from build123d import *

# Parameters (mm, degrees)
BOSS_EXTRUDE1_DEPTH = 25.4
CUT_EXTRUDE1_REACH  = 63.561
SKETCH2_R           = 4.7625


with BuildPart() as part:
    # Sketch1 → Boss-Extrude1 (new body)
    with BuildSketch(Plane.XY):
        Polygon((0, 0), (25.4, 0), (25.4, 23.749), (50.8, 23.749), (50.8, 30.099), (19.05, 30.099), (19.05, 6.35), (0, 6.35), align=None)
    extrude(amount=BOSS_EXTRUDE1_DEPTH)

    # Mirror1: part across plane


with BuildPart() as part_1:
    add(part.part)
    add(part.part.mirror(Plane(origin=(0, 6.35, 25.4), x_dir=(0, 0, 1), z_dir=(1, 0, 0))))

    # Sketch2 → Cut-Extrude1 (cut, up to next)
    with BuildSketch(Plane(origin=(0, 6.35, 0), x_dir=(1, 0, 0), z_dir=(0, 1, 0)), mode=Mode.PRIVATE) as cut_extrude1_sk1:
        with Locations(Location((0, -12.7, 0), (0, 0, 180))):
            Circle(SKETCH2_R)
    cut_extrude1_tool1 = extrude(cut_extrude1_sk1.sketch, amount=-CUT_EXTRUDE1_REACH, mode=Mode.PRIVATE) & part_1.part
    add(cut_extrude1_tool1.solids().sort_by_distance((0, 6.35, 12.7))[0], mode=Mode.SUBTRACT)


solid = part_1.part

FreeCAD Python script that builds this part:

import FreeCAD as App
import Part
import Sketcher

V = App.Vector
Q = App.Units.Quantity


def add_polygon(sketch, points):
    """Adds a closed chain of lines whose ends are joined by coincident constraints."""
    first, n = sketch.GeometryCount, len(points)
    for a, b in zip(points, points[1:] + points[:1]):
        sketch.addGeometry(Part.LineSegment(App.Vector(*a, 0), App.Vector(*b, 0)), False)
    for i in range(n):
        sketch.addConstraint(Sketcher.Constraint("Coincident", first + i, 2, first + (i + 1) % n, 1))

doc = App.newDocument("Part")
body = doc.addObject("PartDesign::Body", "Body")

# Sketch on XY plane
sketch1 = body.newObject("Sketcher::SketchObject", "Sketch")
sketch1.AttachmentSupport = (doc.getObject("XY_Plane"), [""])
sketch1.MapMode = "FlatFace"
add_polygon(sketch1, [(0, 0), (25, 0), (25, 24), (51, 24), (51, 30), (19, 30), (19, 6), (0, 6)])  # lines 0-7
sketch1.addConstraint(Sketcher.Constraint("Horizontal", 0))
sketch1.addConstraint(Sketcher.Constraint("Vertical", 1))
sketch1.addConstraint(Sketcher.Constraint("Horizontal", 2))
sketch1.addConstraint(Sketcher.Constraint("Vertical", 3))
sketch1.addConstraint(Sketcher.Constraint("Horizontal", 4))
sketch1.addConstraint(Sketcher.Constraint("Vertical", 5))
sketch1.addConstraint(Sketcher.Constraint("Horizontal", 6))
sketch1.addConstraint(Sketcher.Constraint("Vertical", 7))
sketch1.addConstraint(Sketcher.Constraint("Coincident", 7, 2, -1, 1))
sketch1.addConstraint(Sketcher.Constraint("Equal", 0, 2))
sketch1.addConstraint(Sketcher.Constraint("Equal", 1, 5))
sketch1.addConstraint(Sketcher.Constraint("DistanceX", 0, 1, 0, 2, Q("1 in")))
sketch1.addConstraint(Sketcher.Constraint("DistanceX", 4, 2, 4, 1, Q("1.25 in")))
sketch1.addConstraint(Sketcher.Constraint("DistanceY", 3, 1, 3, 2, Q("0.25 in")))
sketch1.addConstraint(Sketcher.Constraint("DistanceY", 1, 1, 1, 2, Q("0.935 in")))
pad1 = body.newObject("PartDesign::Pad", "Pad")
pad1.Profile = sketch1
pad1.Length = Q("1 in")
body2 = doc.addObject("PartDesign::Body", "Body001")
doc.recompute()

body2.BaseFeature = body
doc.recompute()

mirroring = doc.addObject("Part::Mirroring", "Mirroring")
mirroring.Source = body
mirroring.Base = V(0, 6.35, 25.4)
mirroring.Normal = V(1, 0, 0)
body3 = doc.addObject("PartDesign::Body", "Body002")
body3.BaseFeature = mirroring
boolean = body2.newObject("PartDesign::Boolean", "Boolean")
boolean.Type = "Fuse"
boolean.addObjects([body3])
doc.recompute()

# Sketch on XZ plane
sketch2 = body2.newObject("Sketcher::SketchObject", "Sketch001")
sketch2.AttachmentSupport = (doc.getObject("XZ_Plane001"), [""])
sketch2.MapMode = "FlatFace"
sketch2.AttachmentOffset = App.Placement(V(0, 0, -0.25 * 25.4), App.Rotation())
sketch2.addGeometry(Part.Circle(V(0, 12.7, 0), V(0, 0, 1), 4.8), False)
sketch2.addConstraint(Sketcher.Constraint("PointOnObject", 0, 3, -2))
sketch2.addConstraint(Sketcher.Constraint("Diameter", 0, Q("0.375 in")))
sketch2.addConstraint(Sketcher.Constraint("DistanceY", -1, 1, 0, 3, Q("0.5 in")))
pocket1 = body2.newObject("PartDesign::Pocket", "Pocket")
pocket1.Profile = sketch2
pocket1.Type = "UpToFirst"
pocket1.Reversed = True
mirroring.Visibility = False

doc.recompute()
